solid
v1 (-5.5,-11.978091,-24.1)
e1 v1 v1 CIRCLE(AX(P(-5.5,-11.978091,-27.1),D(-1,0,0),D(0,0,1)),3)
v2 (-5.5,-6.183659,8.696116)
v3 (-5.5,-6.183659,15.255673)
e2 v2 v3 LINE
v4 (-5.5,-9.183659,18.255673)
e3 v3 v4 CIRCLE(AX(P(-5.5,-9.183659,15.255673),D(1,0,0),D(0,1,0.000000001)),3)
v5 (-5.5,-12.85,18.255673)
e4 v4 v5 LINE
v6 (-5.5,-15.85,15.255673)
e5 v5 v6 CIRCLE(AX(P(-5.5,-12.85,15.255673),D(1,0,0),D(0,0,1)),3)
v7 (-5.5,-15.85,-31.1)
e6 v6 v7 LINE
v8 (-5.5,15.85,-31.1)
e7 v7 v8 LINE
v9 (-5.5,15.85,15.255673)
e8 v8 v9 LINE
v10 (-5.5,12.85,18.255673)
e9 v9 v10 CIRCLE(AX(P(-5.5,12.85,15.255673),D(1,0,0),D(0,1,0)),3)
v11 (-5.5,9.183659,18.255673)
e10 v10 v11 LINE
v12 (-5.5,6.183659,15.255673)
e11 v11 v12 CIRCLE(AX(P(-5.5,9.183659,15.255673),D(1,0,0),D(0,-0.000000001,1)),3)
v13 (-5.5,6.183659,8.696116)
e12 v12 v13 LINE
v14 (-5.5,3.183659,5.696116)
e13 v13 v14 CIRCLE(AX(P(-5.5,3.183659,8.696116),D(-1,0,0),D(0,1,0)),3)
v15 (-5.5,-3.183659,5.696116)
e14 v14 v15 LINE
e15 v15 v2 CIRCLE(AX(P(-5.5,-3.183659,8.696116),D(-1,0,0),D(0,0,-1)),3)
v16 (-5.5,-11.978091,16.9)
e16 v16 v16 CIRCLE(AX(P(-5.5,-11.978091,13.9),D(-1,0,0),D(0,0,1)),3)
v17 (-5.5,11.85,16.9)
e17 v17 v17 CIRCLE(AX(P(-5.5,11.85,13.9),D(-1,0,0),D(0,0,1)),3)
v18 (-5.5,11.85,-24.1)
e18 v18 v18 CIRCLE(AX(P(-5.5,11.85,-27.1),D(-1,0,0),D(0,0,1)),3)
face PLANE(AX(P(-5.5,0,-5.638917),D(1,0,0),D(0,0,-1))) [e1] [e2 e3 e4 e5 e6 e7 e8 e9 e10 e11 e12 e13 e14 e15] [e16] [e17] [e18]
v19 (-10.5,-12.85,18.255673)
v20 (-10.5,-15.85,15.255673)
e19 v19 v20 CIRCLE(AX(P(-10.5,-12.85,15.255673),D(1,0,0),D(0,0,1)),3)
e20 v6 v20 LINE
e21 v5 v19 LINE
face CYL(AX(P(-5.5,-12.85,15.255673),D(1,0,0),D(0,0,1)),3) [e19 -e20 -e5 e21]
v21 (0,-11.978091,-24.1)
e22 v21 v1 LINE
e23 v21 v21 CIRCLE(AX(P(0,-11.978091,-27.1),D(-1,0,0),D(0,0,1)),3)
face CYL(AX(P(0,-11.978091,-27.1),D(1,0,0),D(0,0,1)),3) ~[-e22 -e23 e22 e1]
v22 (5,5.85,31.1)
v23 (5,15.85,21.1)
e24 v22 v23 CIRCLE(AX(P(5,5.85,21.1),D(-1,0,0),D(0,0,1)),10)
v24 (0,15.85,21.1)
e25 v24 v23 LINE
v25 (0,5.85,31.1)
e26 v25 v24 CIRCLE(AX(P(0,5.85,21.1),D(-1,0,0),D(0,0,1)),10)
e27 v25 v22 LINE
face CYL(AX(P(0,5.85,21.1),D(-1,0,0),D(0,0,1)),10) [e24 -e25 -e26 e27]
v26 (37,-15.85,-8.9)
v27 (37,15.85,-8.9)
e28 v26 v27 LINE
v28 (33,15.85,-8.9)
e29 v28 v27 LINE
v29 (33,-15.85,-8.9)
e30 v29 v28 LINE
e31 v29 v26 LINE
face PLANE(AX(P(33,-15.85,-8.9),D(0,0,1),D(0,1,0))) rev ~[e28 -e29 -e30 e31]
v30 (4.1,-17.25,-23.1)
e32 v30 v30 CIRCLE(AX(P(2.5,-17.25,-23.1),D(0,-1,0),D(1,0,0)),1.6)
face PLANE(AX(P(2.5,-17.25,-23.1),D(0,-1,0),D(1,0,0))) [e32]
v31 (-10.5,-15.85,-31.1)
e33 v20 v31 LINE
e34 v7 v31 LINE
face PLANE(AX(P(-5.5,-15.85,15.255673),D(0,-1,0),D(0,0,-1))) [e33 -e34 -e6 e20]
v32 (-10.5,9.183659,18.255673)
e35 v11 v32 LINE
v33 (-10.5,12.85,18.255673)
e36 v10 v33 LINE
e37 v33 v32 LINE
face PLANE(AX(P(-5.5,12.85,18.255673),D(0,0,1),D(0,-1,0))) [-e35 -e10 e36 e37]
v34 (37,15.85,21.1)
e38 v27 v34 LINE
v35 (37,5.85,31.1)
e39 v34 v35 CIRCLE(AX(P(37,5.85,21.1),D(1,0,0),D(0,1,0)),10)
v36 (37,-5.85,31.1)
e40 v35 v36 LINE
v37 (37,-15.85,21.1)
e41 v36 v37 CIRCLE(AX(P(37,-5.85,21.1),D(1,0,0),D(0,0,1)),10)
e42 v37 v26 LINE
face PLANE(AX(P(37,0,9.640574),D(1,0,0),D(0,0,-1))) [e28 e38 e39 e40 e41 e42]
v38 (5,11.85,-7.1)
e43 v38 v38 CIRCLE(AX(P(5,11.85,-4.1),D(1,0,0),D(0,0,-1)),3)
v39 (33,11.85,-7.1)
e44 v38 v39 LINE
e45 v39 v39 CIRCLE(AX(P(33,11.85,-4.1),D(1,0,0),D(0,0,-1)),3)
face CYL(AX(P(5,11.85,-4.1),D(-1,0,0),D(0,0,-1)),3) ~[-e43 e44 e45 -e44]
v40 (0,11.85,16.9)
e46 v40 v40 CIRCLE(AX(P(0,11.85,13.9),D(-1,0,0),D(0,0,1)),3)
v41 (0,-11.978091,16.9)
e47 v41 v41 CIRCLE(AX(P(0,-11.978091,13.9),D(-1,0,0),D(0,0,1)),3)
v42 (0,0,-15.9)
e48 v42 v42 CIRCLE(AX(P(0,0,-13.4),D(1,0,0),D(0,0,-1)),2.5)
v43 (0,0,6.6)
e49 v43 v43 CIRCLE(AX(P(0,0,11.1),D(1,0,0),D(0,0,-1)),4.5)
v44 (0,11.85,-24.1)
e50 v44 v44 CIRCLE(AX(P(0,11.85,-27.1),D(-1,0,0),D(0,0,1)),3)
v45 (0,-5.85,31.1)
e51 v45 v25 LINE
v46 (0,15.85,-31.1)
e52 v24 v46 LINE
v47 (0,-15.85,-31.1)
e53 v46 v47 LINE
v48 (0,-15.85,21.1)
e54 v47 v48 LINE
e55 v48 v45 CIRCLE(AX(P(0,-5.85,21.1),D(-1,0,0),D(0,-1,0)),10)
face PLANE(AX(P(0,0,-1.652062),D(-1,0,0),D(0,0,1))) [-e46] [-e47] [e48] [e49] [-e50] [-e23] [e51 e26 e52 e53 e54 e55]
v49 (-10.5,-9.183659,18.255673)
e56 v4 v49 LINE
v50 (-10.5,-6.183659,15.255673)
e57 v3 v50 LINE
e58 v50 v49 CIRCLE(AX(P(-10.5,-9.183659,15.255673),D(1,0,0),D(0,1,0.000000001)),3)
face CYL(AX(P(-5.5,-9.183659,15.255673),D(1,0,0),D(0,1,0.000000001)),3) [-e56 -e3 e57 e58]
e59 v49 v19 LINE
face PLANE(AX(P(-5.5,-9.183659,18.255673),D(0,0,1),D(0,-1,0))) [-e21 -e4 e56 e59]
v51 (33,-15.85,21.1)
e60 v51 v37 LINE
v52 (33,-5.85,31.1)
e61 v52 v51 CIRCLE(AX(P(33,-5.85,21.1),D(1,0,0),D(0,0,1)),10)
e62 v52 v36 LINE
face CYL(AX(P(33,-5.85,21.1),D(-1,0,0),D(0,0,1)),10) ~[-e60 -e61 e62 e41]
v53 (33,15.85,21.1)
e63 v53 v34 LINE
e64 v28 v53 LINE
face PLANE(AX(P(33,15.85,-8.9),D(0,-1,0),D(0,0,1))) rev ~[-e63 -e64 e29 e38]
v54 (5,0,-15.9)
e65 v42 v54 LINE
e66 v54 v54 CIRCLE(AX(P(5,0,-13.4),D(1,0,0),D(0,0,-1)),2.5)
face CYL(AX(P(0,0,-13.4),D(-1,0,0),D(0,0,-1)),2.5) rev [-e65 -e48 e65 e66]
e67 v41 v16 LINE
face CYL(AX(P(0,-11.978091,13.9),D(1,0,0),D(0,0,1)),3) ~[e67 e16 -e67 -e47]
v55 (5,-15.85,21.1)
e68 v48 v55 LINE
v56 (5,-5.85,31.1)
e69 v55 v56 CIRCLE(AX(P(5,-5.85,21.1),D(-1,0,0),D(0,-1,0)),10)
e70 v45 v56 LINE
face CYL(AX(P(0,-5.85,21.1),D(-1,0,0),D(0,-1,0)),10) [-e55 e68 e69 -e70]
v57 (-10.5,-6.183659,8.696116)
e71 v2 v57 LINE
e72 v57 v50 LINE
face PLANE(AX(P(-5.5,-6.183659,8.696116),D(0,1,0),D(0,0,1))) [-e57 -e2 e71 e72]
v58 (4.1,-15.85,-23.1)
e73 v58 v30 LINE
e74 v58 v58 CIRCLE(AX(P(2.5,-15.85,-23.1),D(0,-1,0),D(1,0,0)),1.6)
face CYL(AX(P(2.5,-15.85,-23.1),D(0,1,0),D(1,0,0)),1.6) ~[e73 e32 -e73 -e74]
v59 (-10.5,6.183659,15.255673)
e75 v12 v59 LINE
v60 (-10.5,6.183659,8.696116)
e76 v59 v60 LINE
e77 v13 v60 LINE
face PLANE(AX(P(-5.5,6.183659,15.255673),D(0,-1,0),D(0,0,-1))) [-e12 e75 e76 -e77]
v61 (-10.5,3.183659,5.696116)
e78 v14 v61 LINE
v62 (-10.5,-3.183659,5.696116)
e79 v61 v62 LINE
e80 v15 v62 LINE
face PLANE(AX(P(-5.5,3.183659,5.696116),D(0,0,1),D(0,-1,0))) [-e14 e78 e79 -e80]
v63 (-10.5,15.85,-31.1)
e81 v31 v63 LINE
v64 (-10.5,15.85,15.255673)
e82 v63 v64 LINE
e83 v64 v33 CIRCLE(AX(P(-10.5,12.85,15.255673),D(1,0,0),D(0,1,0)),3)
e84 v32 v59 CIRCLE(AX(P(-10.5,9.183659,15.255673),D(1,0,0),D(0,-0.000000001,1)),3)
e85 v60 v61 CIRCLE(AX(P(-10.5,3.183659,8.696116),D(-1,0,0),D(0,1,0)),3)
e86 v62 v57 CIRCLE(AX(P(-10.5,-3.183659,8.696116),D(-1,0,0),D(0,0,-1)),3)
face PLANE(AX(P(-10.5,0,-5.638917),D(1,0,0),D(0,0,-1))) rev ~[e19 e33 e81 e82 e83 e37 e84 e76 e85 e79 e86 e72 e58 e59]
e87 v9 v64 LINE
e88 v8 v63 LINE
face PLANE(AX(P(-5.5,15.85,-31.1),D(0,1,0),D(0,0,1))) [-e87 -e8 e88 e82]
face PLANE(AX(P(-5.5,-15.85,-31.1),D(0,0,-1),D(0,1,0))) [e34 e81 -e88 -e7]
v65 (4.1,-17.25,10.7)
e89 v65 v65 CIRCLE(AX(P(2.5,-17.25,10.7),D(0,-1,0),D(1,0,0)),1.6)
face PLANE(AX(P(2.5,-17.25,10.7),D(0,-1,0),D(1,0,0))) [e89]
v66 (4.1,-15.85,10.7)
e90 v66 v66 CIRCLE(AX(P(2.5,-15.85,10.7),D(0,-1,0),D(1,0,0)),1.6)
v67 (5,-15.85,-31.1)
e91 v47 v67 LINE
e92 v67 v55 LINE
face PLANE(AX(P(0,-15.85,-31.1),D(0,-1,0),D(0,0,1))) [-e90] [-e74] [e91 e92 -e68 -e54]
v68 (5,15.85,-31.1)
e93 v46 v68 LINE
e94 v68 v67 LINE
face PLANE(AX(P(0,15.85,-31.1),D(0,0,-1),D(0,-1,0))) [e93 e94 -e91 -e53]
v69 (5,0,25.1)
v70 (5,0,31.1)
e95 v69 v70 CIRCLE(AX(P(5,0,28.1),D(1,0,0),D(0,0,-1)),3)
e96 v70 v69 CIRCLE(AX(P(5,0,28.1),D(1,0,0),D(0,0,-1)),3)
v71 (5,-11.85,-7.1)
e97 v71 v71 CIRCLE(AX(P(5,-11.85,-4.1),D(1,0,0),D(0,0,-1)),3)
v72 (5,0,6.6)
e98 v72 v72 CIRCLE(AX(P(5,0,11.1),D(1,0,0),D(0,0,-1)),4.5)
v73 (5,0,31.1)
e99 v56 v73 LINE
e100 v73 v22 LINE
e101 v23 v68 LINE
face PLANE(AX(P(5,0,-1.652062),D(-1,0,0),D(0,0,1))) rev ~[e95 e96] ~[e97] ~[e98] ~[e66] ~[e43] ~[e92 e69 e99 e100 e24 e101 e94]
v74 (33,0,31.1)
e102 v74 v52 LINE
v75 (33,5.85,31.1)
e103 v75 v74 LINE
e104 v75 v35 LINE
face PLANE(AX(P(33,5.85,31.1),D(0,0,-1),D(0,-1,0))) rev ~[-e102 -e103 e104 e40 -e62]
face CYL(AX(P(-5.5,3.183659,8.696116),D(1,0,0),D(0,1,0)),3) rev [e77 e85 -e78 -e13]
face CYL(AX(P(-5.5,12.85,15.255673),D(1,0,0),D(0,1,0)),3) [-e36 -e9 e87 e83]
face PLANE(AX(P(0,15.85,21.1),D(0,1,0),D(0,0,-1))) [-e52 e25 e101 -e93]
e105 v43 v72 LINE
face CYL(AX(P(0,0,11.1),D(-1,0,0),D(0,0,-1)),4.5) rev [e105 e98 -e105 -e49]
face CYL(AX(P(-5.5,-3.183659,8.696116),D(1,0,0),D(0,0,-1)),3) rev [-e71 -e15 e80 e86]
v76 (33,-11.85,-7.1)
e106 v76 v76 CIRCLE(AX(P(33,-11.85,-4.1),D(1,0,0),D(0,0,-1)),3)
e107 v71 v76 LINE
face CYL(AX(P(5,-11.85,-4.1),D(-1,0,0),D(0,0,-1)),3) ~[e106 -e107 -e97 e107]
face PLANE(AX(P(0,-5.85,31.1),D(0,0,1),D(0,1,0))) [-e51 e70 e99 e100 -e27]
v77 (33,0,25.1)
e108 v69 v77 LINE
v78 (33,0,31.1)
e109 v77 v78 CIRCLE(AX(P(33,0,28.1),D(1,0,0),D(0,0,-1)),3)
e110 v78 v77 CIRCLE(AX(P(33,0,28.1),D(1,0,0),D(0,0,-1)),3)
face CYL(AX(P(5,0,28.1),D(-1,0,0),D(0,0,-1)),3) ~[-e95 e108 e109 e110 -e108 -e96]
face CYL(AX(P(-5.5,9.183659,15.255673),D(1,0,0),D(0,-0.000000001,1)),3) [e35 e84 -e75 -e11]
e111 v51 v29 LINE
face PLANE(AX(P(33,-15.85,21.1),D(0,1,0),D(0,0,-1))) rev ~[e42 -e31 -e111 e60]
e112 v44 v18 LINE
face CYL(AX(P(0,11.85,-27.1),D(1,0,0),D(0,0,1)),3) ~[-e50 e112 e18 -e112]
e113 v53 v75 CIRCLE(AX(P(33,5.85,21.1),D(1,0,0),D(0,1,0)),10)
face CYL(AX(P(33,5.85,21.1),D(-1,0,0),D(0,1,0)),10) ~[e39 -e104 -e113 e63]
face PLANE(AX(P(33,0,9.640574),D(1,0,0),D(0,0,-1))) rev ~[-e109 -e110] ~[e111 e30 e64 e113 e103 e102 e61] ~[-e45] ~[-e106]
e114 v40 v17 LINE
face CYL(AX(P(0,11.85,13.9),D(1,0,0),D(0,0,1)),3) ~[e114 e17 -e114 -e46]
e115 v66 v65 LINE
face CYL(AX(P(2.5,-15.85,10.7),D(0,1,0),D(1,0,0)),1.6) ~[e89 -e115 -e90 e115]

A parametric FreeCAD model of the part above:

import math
import FreeCAD as App
import Part
import Sketcher

V = App.Vector

doc = App.newDocument("Part")
body = doc.addObject("PartDesign::Body", "Body")

# Sketch on YZ plane
sketch1 = body.newObject("Sketcher::SketchObject", "Sketch")
sketch1.AttachmentSupport = (doc.getObject("YZ_Plane"), [""])
sketch1.MapMode = "FlatFace"
sketch1.addGeometry(Part.LineSegment(V(-15.8, 21.1, 0), V(-15.8, -31.1, 0)), False)
sketch1.addGeometry(Part.LineSegment(V(-15.8, -31.1, 0), V(15.8, -31.1, 0)), False)
sketch1.addGeometry(Part.LineSegment(V(15.8, -31.1, 0), V(15.8, 21.1, 0)), False)
sketch1.addGeometry(Part.ArcOfCircle(Part.Circle(V(5.8, 21.1, 0), V(0, 0, 1), 10), math.radians(0), math.radians(90)), False)
sketch1.addGeometry(Part.LineSegment(V(5.8, 31.1, 0), V(-5.8, 31.1, 0)), False)
sketch1.addGeometry(Part.ArcOfCircle(Part.Circle(V(-5.8, 21.1, 0), V(0, 0, 1), 10), math.radians(90), math.radians(180)), False)
sketch1.addGeometry(Part.Circle(V(0, -13.4, 0), V(0, 0, 1), 2.5), False)
sketch1.addGeometry(Part.Circle(V(0, 11.1, 0), V(0, 0, 1), 4.5), False)
sketch1.addConstraint(Sketcher.Constraint("Coincident", 0, 2, 1, 1))
sketch1.addConstraint(Sketcher.Constraint("Coincident", 1, 2, 2, 1))
sketch1.addConstraint(Sketcher.Constraint("Tangent", 2, 2, 3, 1))
sketch1.addConstraint(Sketcher.Constraint("Tangent", 3, 2, 4, 1))
sketch1.addConstraint(Sketcher.Constraint("Tangent", 4, 2, 5, 1))
sketch1.addConstraint(Sketcher.Constraint("Tangent", 5, 2, 0, 1))
sketch1.addConstraint(Sketcher.Constraint("Vertical", 0))
sketch1.addConstraint(Sketcher.Constraint("Horizontal", 1))
sketch1.addConstraint(Sketcher.Constraint("Vertical", 2))
sketch1.addConstraint(Sketcher.Constraint("Horizontal", 4))
sketch1.addConstraint(Sketcher.Constraint("Equal", 3, 5))
sketch1.addConstraint(Sketcher.Constraint("PointOnObject", 6, 3, -2))
sketch1.addConstraint(Sketcher.Constraint("PointOnObject", 7, 3, -2))
sketch1.addConstraint(Sketcher.Constraint("Diameter", 6, 5.0))
sketch1.addConstraint(Sketcher.Constraint("Diameter", 7, 9.0))
sketch1.addConstraint(Sketcher.Constraint("Radius", 3, 10.0))
sketch1.addConstraint(Sketcher.Constraint("DistanceX", 1, 1, 1, 2, 31.7))
sketch1.addConstraint(Sketcher.Constraint("DistanceY", 0, 2, 0, 1, 52.2))
sketch1.addConstraint(Sketcher.Constraint("DistanceY", 7, 3, 3, 3, 10.0))
sketch1.addConstraint(Sketcher.Constraint("DistanceY", -1, 1, 3, 3, 21.1))
sketch1.addConstraint(Sketcher.Constraint("DistanceY", 6, 3, -1, 1, 13.4))
sketch1.addConstraint(Sketcher.Constraint("DistanceX", -1, 1, 3, 3, 5.85))
pad1 = body.newObject("PartDesign::Pad", "Pad")
pad1.Profile = sketch1
pad1.Length = 5

# Sketch on YZ plane
sketch2 = body.newObject("Sketcher::SketchObject", "Sketch001")
sketch2.AttachmentSupport = (doc.getObject("YZ_Plane"), [""])
sketch2.MapMode = "FlatFace"
sketch2.AttachmentOffset = App.Placement(V(0, 0, 5), App.Rotation())
sketch2.addGeometry(Part.Circle(V(0, 28.1, 0), V(0, 0, 1), 3), False)
sketch2.addGeometry(Part.Circle(V(11.8, -4.1, 0), V(0, 0, 1), 3), False)
sketch2.addGeometry(Part.Circle(V(-11.8, -4.1, 0), V(0, 0, 1), 3), False)
sketch2.addConstraint(Sketcher.Constraint("Equal", 0, 1))
sketch2.addConstraint(Sketcher.Constraint("Equal", 1, 2))
sketch2.addConstraint(Sketcher.Constraint("Symmetric", 1, 3, 2, 3, -2))
sketch2.addConstraint(Sketcher.Constraint("PointOnObject", 0, 3, -2))
sketch2.addConstraint(Sketcher.Constraint("Diameter", 0, 6.0))
sketch2.addConstraint(Sketcher.Constraint("DistanceY", -1, 1, 0, 3, 28.1))
sketch2.addConstraint(Sketcher.Constraint("DistanceY", 1, 3, -1, 1, 4.1))
sketch2.addConstraint(Sketcher.Constraint("DistanceX", 2, 3, 1, 3, 23.7))
pad2 = body.newObject("PartDesign::Pad", "Pad001")
pad2.Profile = sketch2
pad2.Length = 28

# Sketch on YZ plane
sketch3 = body.newObject("Sketcher::SketchObject", "Sketch002")
sketch3.AttachmentSupport = (doc.getObject("YZ_Plane"), [""])
sketch3.MapMode = "FlatFace"
sketch3.AttachmentOffset = App.Placement(V(0, 0, 33), App.Rotation())
sketch3.addGeometry(Part.LineSegment(V(16, -9, 0), V(16, 21, 0)), False)
sketch3.addGeometry(Part.ArcOfCircle(Part.Circle(V(6, 21, 0), V(0, 0, 1), 10), math.radians(0), math.radians(90)), False)
sketch3.addGeometry(Part.LineSegment(V(6, 31, 0), V(-6, 31, 0)), False)
sketch3.addGeometry(Part.ArcOfCircle(Part.Circle(V(-6, 21, 0), V(0, 0, 1), 10), math.radians(90), math.radians(180)), False)
sketch3.addGeometry(Part.LineSegment(V(-16, 21, 0), V(-16, -9, 0)), False)
sketch3.addGeometry(Part.LineSegment(V(-16, -9, 0), V(16, -9, 0)), False)
sketch3.addConstraint(Sketcher.Constraint("Tangent", 0, 2, 1, 1))
sketch3.addConstraint(Sketcher.Constraint("Tangent", 1, 2, 2, 1))
sketch3.addConstraint(Sketcher.Constraint("Tangent", 2, 2, 3, 1))
sketch3.addConstraint(Sketcher.Constraint("Tangent", 3, 2, 4, 1))
sketch3.addConstraint(Sketcher.Constraint("Coincident", 4, 2, 5, 1))
sketch3.addConstraint(Sketcher.Constraint("Coincident", 5, 2, 0, 1))
sketch3.addConstraint(Sketcher.Constraint("Vertical", 0))
sketch3.addConstraint(Sketcher.Constraint("Horizontal", 2))
sketch3.addConstraint(Sketcher.Constraint("Vertical", 4))
sketch3.addConstraint(Sketcher.Constraint("Horizontal", 5))
sketch3.addConstraint(Sketcher.Constraint("Equal", 1, 3))
sketch3.addConstraint(Sketcher.Constraint("Radius", 1, 10.0))
sketch3.addConstraint(Sketcher.Constraint("DistanceY", 0, 1, 0, 2, 30.0))
sketch3.addConstraint(Sketcher.Constraint("DistanceX", 2, 2, 2, 1, 11.7))
sketch3.addConstraint(Sketcher.Constraint("DistanceY", -1, 1, 1, 3, 21.1))
sketch3.addConstraint(Sketcher.Constraint("DistanceX", -1, 1, 1, 3, 5.85))
pad3 = body.newObject("PartDesign::Pad", "Pad002")
pad3.Profile = sketch3
pad3.Length = 4

# Sketch on YZ plane
sketch4 = body.newObject("Sketcher::SketchObject", "Sketch003")
sketch4.AttachmentSupport = (doc.getObject("YZ_Plane"), [""])
sketch4.MapMode = "FlatFace"
sketch4.addGeometry(Part.Circle(V(11.8, -27.1, 0), V(0, 0, 1), 3), False)
sketch4.addGeometry(Part.Circle(V(-12, -27.1, 0), V(0, 0, 1), 3), False)
sketch4.addGeometry(Part.Circle(V(11.8, 13.9, 0), V(0, 0, 1), 3), False)
sketch4.addGeometry(Part.Circle(V(-12, 13.9, 0), V(0, 0, 1), 3), False)
sketch4.addConstraint(Sketcher.Constraint("Equal", 0, 1))
sketch4.addConstraint(Sketcher.Constraint("Equal", 1, 2))
sketch4.addConstraint(Sketcher.Constraint("Equal", 2, 3))
sketch4.addConstraint(Sketcher.Constraint("Horizontal", 0, 3, 1, 3))
sketch4.addConstraint(Sketcher.Constraint("Horizontal", 2, 3, 3, 3))
sketch4.addConstraint(Sketcher.Constraint("Vertical", 0, 3, 2, 3))
sketch4.addConstraint(Sketcher.Constraint("Vertical", 1, 3, 3, 3))
sketch4.addConstraint(Sketcher.Constraint("Diameter", 0, 6.0))
sketch4.addConstraint(Sketcher.Constraint("DistanceY", 0, 3, 2, 3, 41.0))
sketch4.addConstraint(Sketcher.Constraint("DistanceY", 0, 3, -1, 1, 27.1))
sketch4.addConstraint(Sketcher.Constraint("DistanceX", -1, 1, 0, 3, 11.85))
sketch4.addConstraint(Sketcher.Constraint("DistanceX", 1, 3, -1, 1, 11.978091))
pad4 = body.newObject("PartDesign::Pad", "Pad003")
pad4.Profile = sketch4
pad4.Length = 5.5
pad4.Reversed = True

# Sketch on YZ plane
sketch5 = body.newObject("Sketcher::SketchObject", "Sketch004")
sketch5.AttachmentSupport = (doc.getObject("YZ_Plane"), [""])
sketch5.MapMode = "FlatFace"
sketch5.AttachmentOffset = App.Placement(V(0, 0, -5.5), App.Rotation())
sketch5.addGeometry(Part.LineSegment(V(-15.8, -31.1, 0), V(-15.8, 15.3, 0)), False)
sketch5.addGeometry(Part.ArcOfCircle(Part.Circle(V(-12.8, 15.3, 0), V(0, 0, 1), 3), math.radians(90), math.radians(180)), False)
sketch5.addGeometry(Part.LineSegment(V(-12.8, 18.3, 0), V(-9.2, 18.3, 0)), False)
sketch5.addGeometry(Part.ArcOfCircle(Part.Circle(V(-9.2, 15.3, 0), V(0, 0, 1), 3), math.radians(0), math.radians(90)), False)
sketch5.addGeometry(Part.LineSegment(V(-6.2, 15.3, 0), V(-6.2, 8.7, 0)), False)
sketch5.addGeometry(Part.ArcOfCircle(Part.Circle(V(-3.2, 8.7, 0), V(0, 0, 1), 3), math.radians(180), math.radians(270)), False)
sketch5.addGeometry(Part.LineSegment(V(-3.2, 5.7, 0), V(3.2, 5.7, 0)), False)
sketch5.addGeometry(Part.ArcOfCircle(Part.Circle(V(3.2, 8.7, 0), V(0, 0, 1), 3), math.radians(-90), math.radians(0)), False)
sketch5.addGeometry(Part.LineSegment(V(6.2, 8.7, 0), V(6.2, 15.3, 0)), False)
sketch5.addGeometry(Part.ArcOfCircle(Part.Circle(V(9.2, 15.3, 0), V(0, 0, 1), 3), math.radians(90), math.radians(180)), False)
sketch5.addGeometry(Part.LineSegment(V(9.2, 18.3, 0), V(12.8, 18.3, 0)), False)
sketch5.addGeometry(Part.ArcOfCircle(Part.Circle(V(12.8, 15.3, 0), V(0, 0, 1), 3), math.radians(0), math.radians(90)), False)
sketch5.addGeometry(Part.LineSegment(V(15.8, 15.3, 0), V(15.8, -31.1, 0)), False)
sketch5.addGeometry(Part.LineSegment(V(15.8, -31.1, 0), V(-15.8, -31.1, 0)), False)
sketch5.addConstraint(Sketcher.Constraint("Tangent", 0, 2, 1, 2))
sketch5.addConstraint(Sketcher.Constraint("Tangent", 1, 1, 2, 1))
sketch5.addConstraint(Sketcher.Constraint("Tangent", 2, 2, 3, 2))
sketch5.addConstraint(Sketcher.Constraint("Tangent", 3, 1, 4, 1))
sketch5.addConstraint(Sketcher.Constraint("Tangent", 4, 2, 5, 1))
sketch5.addConstraint(Sketcher.Constraint("Tangent", 5, 2, 6, 1))
sketch5.addConstraint(Sketcher.Constraint("Tangent", 6, 2, 7, 1))
sketch5.addConstraint(Sketcher.Constraint("Tangent", 7, 2, 8, 1))
sketch5.addConstraint(Sketcher.Constraint("Tangent", 8, 2, 9, 2))
sketch5.addConstraint(Sketcher.Constraint("Tangent", 9, 1, 10, 1))
sketch5.addConstraint(Sketcher.Constraint("Tangent", 10, 2, 11, 2))
sketch5.addConstraint(Sketcher.Constraint("Tangent", 11, 1, 12, 1))
sketch5.addConstraint(Sketcher.Constraint("Coincident", 12, 2, 13, 1))
sketch5.addConstraint(Sketcher.Constraint("Coincident", 13, 2, 0, 1))
sketch5.addConstraint(Sketcher.Constraint("Vertical", 0))
sketch5.addConstraint(Sketcher.Constraint("Horizontal", 2))
sketch5.addConstraint(Sketcher.Constraint("Vertical", 4))
sketch5.addConstraint(Sketcher.Constraint("Horizontal", 6))
sketch5.addConstraint(Sketcher.Constraint("Vertical", 8))
sketch5.addConstraint(Sketcher.Constraint("Horizontal", 10))
sketch5.addConstraint(Sketcher.Constraint("Vertical", 12))
sketch5.addConstraint(Sketcher.Constraint("Horizontal", 13))
sketch5.addConstraint(Sketcher.Constraint("Equal", 1, 3))
sketch5.addConstraint(Sketcher.Constraint("Equal", 3, 5))
sketch5.addConstraint(Sketcher.Constraint("Equal", 5, 7))
sketch5.addConstraint(Sketcher.Constraint("Equal", 7, 9))
sketch5.addConstraint(Sketcher.Constraint("Equal", 9, 11))
sketch5.addConstraint(Sketcher.Constraint("Symmetric", 3, 3, 9, 3, -2))
sketch5.addConstraint(Sketcher.Constraint("Equal", 2, 10))
sketch5.addConstraint(Sketcher.Constraint("Radius", 1, 3.0))
sketch5.addConstraint(Sketcher.Constraint("DistanceX", 13, 2, 13, 1, 31.7))
sketch5.addConstraint(Sketcher.Constraint("DistanceY", 12, 2, -1, 1, 31.1))
sketch5.addConstraint(Sketcher.Constraint("DistanceX", 2, 1, 2, 2, 3.666341))
sketch5.addConstraint(Sketcher.Constraint("DistanceY", 0, 1, 0, 2, 46.355673))
sketch5.addConstraint(Sketcher.Constraint("DistanceY", 4, 2, 4, 1, 6.559557))
pad5 = body.newObject("PartDesign::Pad", "Pad004")
pad5.Profile = sketch5
pad5.Length = 5
pad5.Reversed = True

# Sketch on XZ plane
sketch6 = body.newObject("Sketcher::SketchObject", "Sketch005")
sketch6.AttachmentSupport = (doc.getObject("XZ_Plane"), [""])
sketch6.MapMode = "FlatFace"
sketch6.AttachmentOffset = App.Placement(V(0, 0, 15.85), App.Rotation())
sketch6.addGeometry(Part.Circle(V(2.5, 10.7, 0), V(0, 0, 1), 1.6), False)
sketch6.addGeometry(Part.Circle(V(2.5, -23.1, 0), V(0, 0, 1), 1.6), False)
sketch6.addConstraint(Sketcher.Constraint("Equal", 0, 1))
sketch6.addConstraint(Sketcher.Constraint("Vertical", 0, 3, 1, 3))
sketch6.addConstraint(Sketcher.Constraint("Diameter", 0, 3.2))
sketch6.addConstraint(Sketcher.Constraint("DistanceX", -1, 1, 0, 3, 2.5))
sketch6.addConstraint(Sketcher.Constraint("DistanceY", -1, 1, 0, 3, 10.7))
sketch6.addConstraint(Sketcher.Constraint("DistanceY", 1, 3, -1, 1, 23.1))
pad6 = body.newObject("PartDesign::Pad", "Pad005")
pad6.Profile = sketch6
pad6.Length = 1.4

doc.recompute()
